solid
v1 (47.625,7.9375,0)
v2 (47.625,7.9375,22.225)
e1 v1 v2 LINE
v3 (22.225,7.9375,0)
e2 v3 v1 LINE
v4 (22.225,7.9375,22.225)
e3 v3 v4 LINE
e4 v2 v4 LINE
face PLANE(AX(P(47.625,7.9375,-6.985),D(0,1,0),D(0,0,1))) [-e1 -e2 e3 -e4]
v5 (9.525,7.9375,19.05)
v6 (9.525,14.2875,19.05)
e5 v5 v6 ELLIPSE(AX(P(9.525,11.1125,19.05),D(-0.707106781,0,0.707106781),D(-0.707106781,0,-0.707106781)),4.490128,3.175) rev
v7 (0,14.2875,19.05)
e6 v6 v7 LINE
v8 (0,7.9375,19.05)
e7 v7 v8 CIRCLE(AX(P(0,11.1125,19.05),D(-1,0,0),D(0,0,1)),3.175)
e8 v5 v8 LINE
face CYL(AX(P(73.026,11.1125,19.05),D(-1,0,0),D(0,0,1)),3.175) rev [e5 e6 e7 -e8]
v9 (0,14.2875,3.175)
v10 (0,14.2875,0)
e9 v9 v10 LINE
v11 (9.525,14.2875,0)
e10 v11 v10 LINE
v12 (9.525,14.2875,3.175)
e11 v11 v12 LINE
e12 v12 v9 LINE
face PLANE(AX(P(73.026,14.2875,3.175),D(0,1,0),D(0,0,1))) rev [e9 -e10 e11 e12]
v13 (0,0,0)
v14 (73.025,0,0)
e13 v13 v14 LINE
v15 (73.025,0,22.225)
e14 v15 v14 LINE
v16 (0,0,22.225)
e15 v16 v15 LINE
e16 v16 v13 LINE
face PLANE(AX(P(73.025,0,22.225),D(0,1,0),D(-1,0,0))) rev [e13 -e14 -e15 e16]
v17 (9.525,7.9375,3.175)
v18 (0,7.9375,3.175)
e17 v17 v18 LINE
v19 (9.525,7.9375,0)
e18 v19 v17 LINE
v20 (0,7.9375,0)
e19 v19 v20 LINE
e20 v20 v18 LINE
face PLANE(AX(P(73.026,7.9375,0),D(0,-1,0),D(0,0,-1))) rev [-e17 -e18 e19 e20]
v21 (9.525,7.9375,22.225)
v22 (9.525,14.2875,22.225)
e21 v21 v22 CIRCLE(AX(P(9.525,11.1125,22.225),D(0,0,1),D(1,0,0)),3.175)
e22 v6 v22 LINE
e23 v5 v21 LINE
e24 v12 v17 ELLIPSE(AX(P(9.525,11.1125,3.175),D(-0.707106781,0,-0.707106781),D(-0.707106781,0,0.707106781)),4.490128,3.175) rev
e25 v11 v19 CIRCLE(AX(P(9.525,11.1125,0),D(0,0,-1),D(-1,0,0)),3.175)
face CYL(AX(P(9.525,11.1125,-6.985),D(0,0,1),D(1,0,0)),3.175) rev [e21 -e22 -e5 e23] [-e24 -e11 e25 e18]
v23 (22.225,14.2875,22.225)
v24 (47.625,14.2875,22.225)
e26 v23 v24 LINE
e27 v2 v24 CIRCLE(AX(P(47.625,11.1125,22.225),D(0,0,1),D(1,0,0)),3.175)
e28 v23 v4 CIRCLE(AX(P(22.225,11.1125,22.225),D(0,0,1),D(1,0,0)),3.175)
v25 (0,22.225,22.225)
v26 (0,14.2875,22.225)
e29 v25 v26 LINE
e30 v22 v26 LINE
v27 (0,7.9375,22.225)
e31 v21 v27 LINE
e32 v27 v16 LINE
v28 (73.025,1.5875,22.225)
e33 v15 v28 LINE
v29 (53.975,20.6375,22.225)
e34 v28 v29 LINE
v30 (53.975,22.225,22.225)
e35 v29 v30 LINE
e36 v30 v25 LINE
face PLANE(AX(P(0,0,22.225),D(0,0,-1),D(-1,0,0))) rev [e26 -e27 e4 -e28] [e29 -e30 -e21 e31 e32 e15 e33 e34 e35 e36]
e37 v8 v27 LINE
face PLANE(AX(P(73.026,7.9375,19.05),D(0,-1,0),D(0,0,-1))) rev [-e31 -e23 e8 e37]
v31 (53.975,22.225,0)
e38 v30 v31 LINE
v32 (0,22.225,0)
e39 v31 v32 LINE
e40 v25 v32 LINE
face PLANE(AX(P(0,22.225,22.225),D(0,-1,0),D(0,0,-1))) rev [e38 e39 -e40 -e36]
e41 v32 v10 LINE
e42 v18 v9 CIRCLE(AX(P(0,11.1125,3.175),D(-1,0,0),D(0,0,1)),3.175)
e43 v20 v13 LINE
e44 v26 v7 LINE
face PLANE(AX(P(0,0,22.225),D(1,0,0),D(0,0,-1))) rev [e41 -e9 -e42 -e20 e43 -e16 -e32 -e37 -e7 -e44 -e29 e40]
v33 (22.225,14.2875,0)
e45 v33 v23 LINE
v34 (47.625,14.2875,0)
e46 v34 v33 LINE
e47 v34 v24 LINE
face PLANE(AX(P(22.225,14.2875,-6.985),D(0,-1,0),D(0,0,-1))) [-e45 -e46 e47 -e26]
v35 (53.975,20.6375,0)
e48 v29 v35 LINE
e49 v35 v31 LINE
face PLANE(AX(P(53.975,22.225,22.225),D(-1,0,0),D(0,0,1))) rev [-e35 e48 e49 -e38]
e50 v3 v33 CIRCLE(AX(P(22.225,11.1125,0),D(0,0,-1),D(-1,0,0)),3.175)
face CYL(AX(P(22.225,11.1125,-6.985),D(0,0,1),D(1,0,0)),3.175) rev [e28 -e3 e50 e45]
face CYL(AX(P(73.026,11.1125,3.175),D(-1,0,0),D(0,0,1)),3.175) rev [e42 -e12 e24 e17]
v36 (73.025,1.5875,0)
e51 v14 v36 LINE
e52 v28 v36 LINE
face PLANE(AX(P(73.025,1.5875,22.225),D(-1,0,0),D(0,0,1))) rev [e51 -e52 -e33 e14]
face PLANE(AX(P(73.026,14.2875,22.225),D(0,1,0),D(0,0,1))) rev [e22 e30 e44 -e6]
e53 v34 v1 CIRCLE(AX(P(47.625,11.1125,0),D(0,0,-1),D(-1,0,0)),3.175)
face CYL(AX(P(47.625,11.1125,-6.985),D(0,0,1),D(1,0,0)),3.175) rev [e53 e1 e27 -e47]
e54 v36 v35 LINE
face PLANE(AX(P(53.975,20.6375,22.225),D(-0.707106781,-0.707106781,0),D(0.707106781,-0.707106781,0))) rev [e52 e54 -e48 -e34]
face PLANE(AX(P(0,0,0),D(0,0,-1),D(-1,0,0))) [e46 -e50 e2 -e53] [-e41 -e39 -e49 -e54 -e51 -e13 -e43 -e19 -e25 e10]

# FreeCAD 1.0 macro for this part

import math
import FreeCAD as App
import Part
import Sketcher
Q = App.Units.Quantity

doc = App.newDocument("Part")
body = doc.addObject("PartDesign::Body", "Body")

# Sketch on XY plane
sketch1 = doc.addObject("Sketcher::SketchObject", "Sketch")
body.addObject(sketch1)
sketch1.AttachmentSupport = (doc.XY_Plane, [""])
sketch1.MapMode = "FlatFace"
sketch1.addGeometry(Part.LineSegment(App.Vector(0, 22.2, 0), App.Vector(0, 0, 0)), False)
sketch1.addGeometry(Part.LineSegment(App.Vector(0, 0, 0), App.Vector(73, 0, 0)), False)
sketch1.addGeometry(Part.LineSegment(App.Vector(73, 0, 0), App.Vector(73, 1.6, 0)), False)
sketch1.addGeometry(Part.LineSegment(App.Vector(73, 1.6, 0), App.Vector(54, 20.6, 0)), False)
sketch1.addGeometry(Part.LineSegment(App.Vector(54, 20.6, 0), App.Vector(54, 22.2, 0)), False)
sketch1.addGeometry(Part.LineSegment(App.Vector(54, 22.2, 0), App.Vector(0, 22.2, 0)), False)
sketch1.addConstraint(Sketcher.Constraint("Coincident", 0, 2, 1, 1))
sketch1.addConstraint(Sketcher.Constraint("Coincident", 1, 2, 2, 1))
sketch1.addConstraint(Sketcher.Constraint("Coincident", 2, 2, 3, 1))
sketch1.addConstraint(Sketcher.Constraint("Coincident", 3, 2, 4, 1))
sketch1.addConstraint(Sketcher.Constraint("Coincident", 4, 2, 5, 1))
sketch1.addConstraint(Sketcher.Constraint("Coincident", 5, 2, 0, 1))
sketch1.addConstraint(Sketcher.Constraint("Vertical", 0))
sketch1.addConstraint(Sketcher.Constraint("Horizontal", 1))
sketch1.addConstraint(Sketcher.Constraint("Vertical", 2))
sketch1.addConstraint(Sketcher.Constraint("Vertical", 4))
sketch1.addConstraint(Sketcher.Constraint("Horizontal", 5))
sketch1.addConstraint(Sketcher.Constraint("Coincident", 0, 2, -1, 1))
sketch1.addConstraint(Sketcher.Constraint("Equal", 2, 4))
sketch1.addConstraint(Sketcher.Constraint("Angle", 3, Q("135 deg")))
sketch1.addConstraint(Sketcher.Constraint("DistanceX", 1, 1, 1, 2, Q("2.875 in")))
sketch1.addConstraint(Sketcher.Constraint("DistanceX", 5, 2, 5, 1, Q("2.125 in")))
sketch1.addConstraint(Sketcher.Constraint("DistanceY", 0, 2, 0, 1, Q("0.875 in")))
pad1 = doc.addObject("PartDesign::Pad", "Pad")
body.addObject(pad1)
pad1.Profile = sketch1
pad1.Length = Q("0.875 in")

# Sketch on XY plane
sketch2 = doc.addObject("Sketcher::SketchObject", "Sketch001")
body.addObject(sketch2)
sketch2.AttachmentSupport = (doc.XY_Plane, [""])
sketch2.MapMode = "FlatFace"
sketch2.AttachmentOffset = App.Placement(App.Vector(0, 0, 0.875 * 25.4), App.Rotation())
sketch2.addGeometry(Part.Circle(App.Vector(9.5, 11.1, 0), App.Vector(0, 0, 1), 3.2), False)
sketch2.addGeometry(Part.LineSegment(App.Vector(47.6, 14.3, 0), App.Vector(22.2, 14.3, 0)), False)
sketch2.addGeometry(Part.ArcOfCircle(Part.Circle(App.Vector(22.2, 11.1, 0), App.Vector(0, 0, 1), 3.2), math.radians(90), math.radians(270)), False)
sketch2.addGeometry(Part.LineSegment(App.Vector(22.2, 7.9, 0), App.Vector(47.6, 7.9, 0)), False)
sketch2.addGeometry(Part.ArcOfCircle(Part.Circle(App.Vector(47.6, 11.1, 0), App.Vector(0, 0, 1), 3.2), math.radians(-90), math.radians(90)), False)
sketch2.addConstraint(Sketcher.Constraint("Tangent", 1, 2, 2, 1))
sketch2.addConstraint(Sketcher.Constraint("Tangent", 2, 2, 3, 1))
sketch2.addConstraint(Sketcher.Constraint("Tangent", 3, 2, 4, 1))
sketch2.addConstraint(Sketcher.Constraint("Tangent", 4, 2, 1, 1))
sketch2.addConstraint(Sketcher.Constraint("Horizontal", 1))
sketch2.addConstraint(Sketcher.Constraint("Horizontal", 3))
sketch2.addConstraint(Sketcher.Constraint("Equal", 0, 2))
sketch2.addConstraint(Sketcher.Constraint("Horizontal", 0, 3, 2, 3))
sketch2.addConstraint(Sketcher.Constraint("Diameter", 0, Q("0.25 in")))
sketch2.addConstraint(Sketcher.Constraint("DistanceX", 1, 2, 1, 1, Q("1 in")))
sketch2.addConstraint(Sketcher.Constraint("DistanceX", 0, 3, 2, 3, Q("0.5 in")))
sketch2.addConstraint(Sketcher.Constraint("DistanceX", -1, 1, 0, 3, Q("0.375 in")))
sketch2.addConstraint(Sketcher.Constraint("DistanceY", -1, 1, 0, 3, Q("0.4375 in")))
pocket1 = doc.addObject("PartDesign::Pocket", "Pocket")
body.addObject(pocket1)
pocket1.Profile = sketch2
pocket1.Length = Q("1.15 in")

# Sketch on YZ plane
sketch3 = doc.addObject("Sketcher::SketchObject", "Sketch002")
body.addObject(sketch3)
sketch3.AttachmentSupport = (doc.YZ_Plane, [""])
sketch3.MapMode = "FlatFace"
sketch3.addGeometry(Part.LineSegment(App.Vector(14.3, 3.2, 0), App.Vector(14.3, 0, 0)), False)
sketch3.addGeometry(Part.LineSegment(App.Vector(14.3, 0, 0), App.Vector(7.9, 0, 0)), False)
sketch3.addGeometry(Part.LineSegment(App.Vector(7.9, 0, 0), App.Vector(7.9, 3.2, 0)), False)
sketch3.addGeometry(Part.ArcOfCircle(Part.Circle(App.Vector(11.1, 3.2, 0), App.Vector(0, 0, 1), 3.2), math.radians(0), math.radians(180)), False)
sketch3.addConstraint(Sketcher.Constraint("Coincident", 0, 2, 1, 1))
sketch3.addConstraint(Sketcher.Constraint("Coincident", 1, 2, 2, 1))
sketch3.addConstraint(Sketcher.Constraint("Tangent", 2, 2, 3, 2))
sketch3.addConstraint(Sketcher.Constraint("Tangent", 3, 1, 0, 1))
sketch3.addConstraint(Sketcher.Constraint("Vertical", 0))
sketch3.addConstraint(Sketcher.Constraint("Horizontal", 1))
sketch3.addConstraint(Sketcher.Constraint("Vertical", 2))
sketch3.addConstraint(Sketcher.Constraint("PointOnObject", 0, 2, -1))
sketch3.addConstraint(Sketcher.Constraint("Radius", 3, Q("0.125 in")))
sketch3.addConstraint(Sketcher.Constraint("DistanceY", 0, 2, 0, 1, Q("0.125 in")))
sketch3.addConstraint(Sketcher.Constraint("DistanceX", -1, 1, 3, 3, Q("0.4375 in")))
pocket2 = doc.addObject("PartDesign::Pocket", "Pocket001")
body.addObject(pocket2)
pocket2.Profile = sketch3
pocket2.Type = "UpToFirst"
pocket2.Reversed = True

# Sketch on YZ plane
sketch4 = doc.addObject("Sketcher::SketchObject", "Sketch003")
body.addObject(sketch4)
sketch4.AttachmentSupport = (doc.YZ_Plane, [""])
sketch4.MapMode = "FlatFace"
sketch4.addGeometry(Part.LineSegment(App.Vector(7.9, 19.1, 0), App.Vector(7.9, 22.2, 0)), False)
sketch4.addGeometry(Part.LineSegment(App.Vector(7.9, 22.2, 0), App.Vector(14.3, 22.2, 0)), False)
sketch4.addGeometry(Part.LineSegment(App.Vector(14.3, 22.2, 0), App.Vector(14.3, 19.1, 0)), False)
sketch4.addGeometry(Part.ArcOfCircle(Part.Circle(App.Vector(11.1, 19.1, 0), App.Vector(0, 0, 1), 3.2), math.radians(180), math.radians(360)), False)
sketch4.addConstraint(Sketcher.Constraint("Coincident", 0, 2, 1, 1))
sketch4.addConstraint(Sketcher.Constraint("Coincident", 1, 2, 2, 1))
sketch4.addConstraint(Sketcher.Constraint("Tangent", 2, 2, 3, 2))
sketch4.addConstraint(Sketcher.Constraint("Tangent", 3, 1, 0, 1))
sketch4.addConstraint(Sketcher.Constraint("Vertical", 0))
sketch4.addConstraint(Sketcher.Constraint("Horizontal", 1))
sketch4.addConstraint(Sketcher.Constraint("Vertical", 2))
sketch4.addConstraint(Sketcher.Constraint("Radius", 3, Q("0.125 in")))
sketch4.addConstraint(Sketcher.Constraint("DistanceY", 0, 1, 0, 2, Q("0.125 in")))
sketch4.addConstraint(Sketcher.Constraint("DistanceY", -1, 1, 3, 3, Q("0.75 in")))
sketch4.addConstraint(Sketcher.Constraint("DistanceX", -1, 1, 3, 3, Q("0.4375 in")))
pocket3 = doc.addObject("PartDesign::Pocket", "Pocket002")
body.addObject(pocket3)
pocket3.Profile = sketch4
pocket3.Type = "UpToFirst"
pocket3.Reversed = True

doc.recompute()
